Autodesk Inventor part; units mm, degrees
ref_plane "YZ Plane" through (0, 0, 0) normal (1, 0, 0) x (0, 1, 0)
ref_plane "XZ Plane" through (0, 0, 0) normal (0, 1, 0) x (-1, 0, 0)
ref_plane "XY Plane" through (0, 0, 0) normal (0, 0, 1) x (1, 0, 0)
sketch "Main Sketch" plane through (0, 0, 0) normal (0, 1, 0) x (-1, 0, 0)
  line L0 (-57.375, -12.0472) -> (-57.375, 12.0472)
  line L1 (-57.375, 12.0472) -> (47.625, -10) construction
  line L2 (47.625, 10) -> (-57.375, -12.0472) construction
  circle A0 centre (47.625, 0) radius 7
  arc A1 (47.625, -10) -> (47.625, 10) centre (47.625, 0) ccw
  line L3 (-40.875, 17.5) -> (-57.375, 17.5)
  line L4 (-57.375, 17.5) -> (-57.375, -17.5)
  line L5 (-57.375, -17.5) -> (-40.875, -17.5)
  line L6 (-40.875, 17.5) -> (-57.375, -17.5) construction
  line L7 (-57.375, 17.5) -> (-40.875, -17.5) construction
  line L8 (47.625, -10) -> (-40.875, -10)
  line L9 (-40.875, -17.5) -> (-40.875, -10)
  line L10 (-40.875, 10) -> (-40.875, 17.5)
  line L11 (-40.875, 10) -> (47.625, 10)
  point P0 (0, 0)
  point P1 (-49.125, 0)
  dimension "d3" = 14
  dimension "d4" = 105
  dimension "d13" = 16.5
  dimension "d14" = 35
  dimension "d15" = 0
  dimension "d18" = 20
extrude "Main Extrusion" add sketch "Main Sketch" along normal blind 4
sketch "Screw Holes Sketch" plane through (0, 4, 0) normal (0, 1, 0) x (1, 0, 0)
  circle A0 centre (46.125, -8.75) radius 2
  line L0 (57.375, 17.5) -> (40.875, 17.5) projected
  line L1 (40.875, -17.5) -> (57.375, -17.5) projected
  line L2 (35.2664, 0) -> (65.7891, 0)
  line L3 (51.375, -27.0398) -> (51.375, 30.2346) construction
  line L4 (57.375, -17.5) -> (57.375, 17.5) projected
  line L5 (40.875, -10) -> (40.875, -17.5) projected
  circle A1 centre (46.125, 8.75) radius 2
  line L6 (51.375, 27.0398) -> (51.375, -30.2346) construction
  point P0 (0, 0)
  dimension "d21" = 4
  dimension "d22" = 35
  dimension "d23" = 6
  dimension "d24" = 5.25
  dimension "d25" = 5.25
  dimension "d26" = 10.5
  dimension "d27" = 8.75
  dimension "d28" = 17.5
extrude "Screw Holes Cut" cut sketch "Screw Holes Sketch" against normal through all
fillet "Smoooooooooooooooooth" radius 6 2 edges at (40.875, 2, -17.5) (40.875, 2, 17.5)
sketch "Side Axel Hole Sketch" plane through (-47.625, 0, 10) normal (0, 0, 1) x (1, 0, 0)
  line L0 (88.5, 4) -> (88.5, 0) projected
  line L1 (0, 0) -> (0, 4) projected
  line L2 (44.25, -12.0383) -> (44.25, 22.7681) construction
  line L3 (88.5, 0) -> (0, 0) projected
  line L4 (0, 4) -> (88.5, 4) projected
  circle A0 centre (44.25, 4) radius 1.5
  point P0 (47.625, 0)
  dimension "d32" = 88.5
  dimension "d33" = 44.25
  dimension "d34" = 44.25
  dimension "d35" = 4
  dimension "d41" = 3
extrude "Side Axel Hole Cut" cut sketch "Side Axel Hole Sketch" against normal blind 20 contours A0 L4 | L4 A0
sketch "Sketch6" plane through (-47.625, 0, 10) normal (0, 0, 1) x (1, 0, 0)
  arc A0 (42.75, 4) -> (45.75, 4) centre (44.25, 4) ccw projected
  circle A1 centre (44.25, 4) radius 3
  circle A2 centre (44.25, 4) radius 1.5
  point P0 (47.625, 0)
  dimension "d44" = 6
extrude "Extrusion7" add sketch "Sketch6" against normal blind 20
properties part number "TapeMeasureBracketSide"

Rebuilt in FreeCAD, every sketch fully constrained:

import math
import FreeCAD as App
import Part
import Sketcher

V = App.Vector


def edges_at(feature, points):
    """Names of the edges that pass closest to the given points."""
    edges = feature.Shape.Edges
    near = lambda p: min(range(len(edges)), key=lambda i: edges[i].distToShape(Part.Vertex(*p))[0])
    return sorted({f"Edge{near(p) + 1}" for p in points})

doc = App.newDocument("Part")
body = doc.addObject("PartDesign::Body", "Body")

sketch1 = body.newObject("Sketcher::SketchObject", "Sketch")
sketch1.AttachmentSupport = (doc.getObject("XZ_Plane"), [""])
sketch1.MapMode = "FlatFace"
sketch1.addGeometry([
    Part.LineSegment(V(57, 18, 0), V(57, -18, 0)),
    Part.LineSegment(V(57, -18, 0), V(41, -18, 0)),
    Part.LineSegment(V(41, -18, 0), V(41, -10, 0)),
    Part.LineSegment(V(41, -10, 0), V(-48, -10, 0)),
    Part.ArcOfCircle(Part.Circle(V(-48, 0, 0), V(0, 0, 1), 10), math.radians(90), math.radians(270)),
    Part.LineSegment(V(-48, 10, 0), V(41, 10, 0)),
    Part.LineSegment(V(41, 10, 0), V(41, 18, 0)),
    Part.LineSegment(V(41, 18, 0), V(57, 18, 0)),
    Part.Circle(V(-48, 0, 0), V(0, 0, 1), 7),
], False)
sketch1.addConstraint([
    Sketcher.Constraint("Coincident", 0, 2, 1, 1),
    Sketcher.Constraint("Coincident", 1, 2, 2, 1),
    Sketcher.Constraint("Coincident", 2, 2, 3, 1),
    Sketcher.Constraint("Tangent", 3, 2, 4, 2),
    Sketcher.Constraint("Tangent", 4, 1, 5, 1),
    Sketcher.Constraint("Coincident", 5, 2, 6, 1),
    Sketcher.Constraint("Coincident", 6, 2, 7, 1),
    Sketcher.Constraint("Coincident", 7, 2, 0, 1),
    Sketcher.Constraint("Vertical", 0),
    Sketcher.Constraint("Horizontal", 1),
    Sketcher.Constraint("Vertical", 2),
    Sketcher.Constraint("Horizontal", 3),
    Sketcher.Constraint("Horizontal", 5),
    Sketcher.Constraint("Vertical", 6),
    Sketcher.Constraint("Horizontal", 7),
    Sketcher.Constraint("Coincident", 8, 3, 4, 3),
    Sketcher.Constraint("Symmetric", 2, 2, 5, 2, -1),
    Sketcher.Constraint("Equal", 2, 6),
    Sketcher.Constraint("Diameter", 8, 14.0),
    Sketcher.Constraint("Radius", 4, 10.0),
    Sketcher.Constraint("DistanceY", 0, 2, 0, 1, 35.0),
    Sketcher.Constraint("DistanceX", 1, 2, 1, 1, 16.5),
    Sketcher.Constraint("DistanceX", 4, 3, 0, 2, 105.0),
    Sketcher.Constraint("DistanceX", 4, 3, -1, 1, 47.625),
])
pad1 = body.newObject("PartDesign::Pad", "Pad")
pad1.Profile = sketch1
pad1.Length = 4
pad1.Reversed = True

sketch2 = body.newObject("Sketcher::SketchObject", "Sketch001")
sketch2.AttachmentSupport = (doc.getObject("XZ_Plane"), [""])
sketch2.MapMode = "FlatFace"
sketch2.AttachmentOffset = App.Placement(V(0, 0, -4), App.Rotation())
sketch2.addGeometry([
    Part.Circle(V(46.1, 8.8, 0), V(0, 0, 1), 2),
    Part.Circle(V(46.1, -8.8, 0), V(0, 0, 1), 2),
], False)
sketch2.addConstraint([
    Sketcher.Constraint("Equal", 0, 1),
    Sketcher.Constraint("Symmetric", 0, 3, 1, 3, -1),
    Sketcher.Constraint("Diameter", 0, 4.0),
    Sketcher.Constraint("DistanceY", 1, 3, 0, 3, 17.5),
    Sketcher.Constraint("DistanceX", -1, 1, 0, 3, 46.125),
])
pocket1 = body.newObject("PartDesign::Pocket", "Pocket")
pocket1.Profile = sketch2
pocket1.Type = "ThroughAll"
pocket1.Reversed = True
doc.recompute()

fillet = body.newObject("PartDesign::Fillet", "Fillet")
fillet.Base = (pocket1, edges_at(pocket1, [(40.875, 2, -17.5), (40.875, 2, 17.5)]))
fillet.Radius = 6

sketch3 = body.newObject("Sketcher::SketchObject", "Sketch002")
sketch3.AttachmentSupport = (doc.getObject("XY_Plane"), [""])
sketch3.MapMode = "FlatFace"
sketch3.AttachmentOffset = App.Placement(V(0, 0, 10), App.Rotation())
sketch3.addGeometry(Part.Circle(V(-3.4, 4, 0), V(0, 0, 1), 1.5), False)
sketch3.addConstraint([
    Sketcher.Constraint("Diameter", 0, 3.0),
    Sketcher.Constraint("DistanceY", -1, 1, 0, 3, 4.0),
    Sketcher.Constraint("DistanceX", 0, 3, -1, 1, 3.375),
])
pocket2 = body.newObject("PartDesign::Pocket", "Pocket001")
pocket2.Profile = sketch3
pocket2.Length = 20

sketch4 = body.newObject("Sketcher::SketchObject", "Sketch003")
sketch4.AttachmentSupport = (doc.getObject("XY_Plane"), [""])
sketch4.MapMode = "FlatFace"
sketch4.AttachmentOffset = App.Placement(V(0, 0, 10), App.Rotation())
sketch4.addGeometry([
    Part.Circle(V(-3.4, 4, 0), V(0, 0, 1), 3),
    Part.Circle(V(-3.4, 4, 0), V(0, 0, 1), 1.5),
], False)
sketch4.addConstraint([
    Sketcher.Constraint("Coincident", 1, 3, 0, 3),
    Sketcher.Constraint("Diameter", 0, 6.0),
    Sketcher.Constraint("Diameter", 1, 3.0),
    Sketcher.Constraint("DistanceY", -1, 1, 0, 3, 4.0),
    Sketcher.Constraint("DistanceX", 0, 3, -1, 1, 3.375),
])
pad2 = body.newObject("PartDesign::Pad", "Pad001")
pad2.Profile = sketch4
pad2.Length = 20
pad2.Reversed = True

doc.recompute()
